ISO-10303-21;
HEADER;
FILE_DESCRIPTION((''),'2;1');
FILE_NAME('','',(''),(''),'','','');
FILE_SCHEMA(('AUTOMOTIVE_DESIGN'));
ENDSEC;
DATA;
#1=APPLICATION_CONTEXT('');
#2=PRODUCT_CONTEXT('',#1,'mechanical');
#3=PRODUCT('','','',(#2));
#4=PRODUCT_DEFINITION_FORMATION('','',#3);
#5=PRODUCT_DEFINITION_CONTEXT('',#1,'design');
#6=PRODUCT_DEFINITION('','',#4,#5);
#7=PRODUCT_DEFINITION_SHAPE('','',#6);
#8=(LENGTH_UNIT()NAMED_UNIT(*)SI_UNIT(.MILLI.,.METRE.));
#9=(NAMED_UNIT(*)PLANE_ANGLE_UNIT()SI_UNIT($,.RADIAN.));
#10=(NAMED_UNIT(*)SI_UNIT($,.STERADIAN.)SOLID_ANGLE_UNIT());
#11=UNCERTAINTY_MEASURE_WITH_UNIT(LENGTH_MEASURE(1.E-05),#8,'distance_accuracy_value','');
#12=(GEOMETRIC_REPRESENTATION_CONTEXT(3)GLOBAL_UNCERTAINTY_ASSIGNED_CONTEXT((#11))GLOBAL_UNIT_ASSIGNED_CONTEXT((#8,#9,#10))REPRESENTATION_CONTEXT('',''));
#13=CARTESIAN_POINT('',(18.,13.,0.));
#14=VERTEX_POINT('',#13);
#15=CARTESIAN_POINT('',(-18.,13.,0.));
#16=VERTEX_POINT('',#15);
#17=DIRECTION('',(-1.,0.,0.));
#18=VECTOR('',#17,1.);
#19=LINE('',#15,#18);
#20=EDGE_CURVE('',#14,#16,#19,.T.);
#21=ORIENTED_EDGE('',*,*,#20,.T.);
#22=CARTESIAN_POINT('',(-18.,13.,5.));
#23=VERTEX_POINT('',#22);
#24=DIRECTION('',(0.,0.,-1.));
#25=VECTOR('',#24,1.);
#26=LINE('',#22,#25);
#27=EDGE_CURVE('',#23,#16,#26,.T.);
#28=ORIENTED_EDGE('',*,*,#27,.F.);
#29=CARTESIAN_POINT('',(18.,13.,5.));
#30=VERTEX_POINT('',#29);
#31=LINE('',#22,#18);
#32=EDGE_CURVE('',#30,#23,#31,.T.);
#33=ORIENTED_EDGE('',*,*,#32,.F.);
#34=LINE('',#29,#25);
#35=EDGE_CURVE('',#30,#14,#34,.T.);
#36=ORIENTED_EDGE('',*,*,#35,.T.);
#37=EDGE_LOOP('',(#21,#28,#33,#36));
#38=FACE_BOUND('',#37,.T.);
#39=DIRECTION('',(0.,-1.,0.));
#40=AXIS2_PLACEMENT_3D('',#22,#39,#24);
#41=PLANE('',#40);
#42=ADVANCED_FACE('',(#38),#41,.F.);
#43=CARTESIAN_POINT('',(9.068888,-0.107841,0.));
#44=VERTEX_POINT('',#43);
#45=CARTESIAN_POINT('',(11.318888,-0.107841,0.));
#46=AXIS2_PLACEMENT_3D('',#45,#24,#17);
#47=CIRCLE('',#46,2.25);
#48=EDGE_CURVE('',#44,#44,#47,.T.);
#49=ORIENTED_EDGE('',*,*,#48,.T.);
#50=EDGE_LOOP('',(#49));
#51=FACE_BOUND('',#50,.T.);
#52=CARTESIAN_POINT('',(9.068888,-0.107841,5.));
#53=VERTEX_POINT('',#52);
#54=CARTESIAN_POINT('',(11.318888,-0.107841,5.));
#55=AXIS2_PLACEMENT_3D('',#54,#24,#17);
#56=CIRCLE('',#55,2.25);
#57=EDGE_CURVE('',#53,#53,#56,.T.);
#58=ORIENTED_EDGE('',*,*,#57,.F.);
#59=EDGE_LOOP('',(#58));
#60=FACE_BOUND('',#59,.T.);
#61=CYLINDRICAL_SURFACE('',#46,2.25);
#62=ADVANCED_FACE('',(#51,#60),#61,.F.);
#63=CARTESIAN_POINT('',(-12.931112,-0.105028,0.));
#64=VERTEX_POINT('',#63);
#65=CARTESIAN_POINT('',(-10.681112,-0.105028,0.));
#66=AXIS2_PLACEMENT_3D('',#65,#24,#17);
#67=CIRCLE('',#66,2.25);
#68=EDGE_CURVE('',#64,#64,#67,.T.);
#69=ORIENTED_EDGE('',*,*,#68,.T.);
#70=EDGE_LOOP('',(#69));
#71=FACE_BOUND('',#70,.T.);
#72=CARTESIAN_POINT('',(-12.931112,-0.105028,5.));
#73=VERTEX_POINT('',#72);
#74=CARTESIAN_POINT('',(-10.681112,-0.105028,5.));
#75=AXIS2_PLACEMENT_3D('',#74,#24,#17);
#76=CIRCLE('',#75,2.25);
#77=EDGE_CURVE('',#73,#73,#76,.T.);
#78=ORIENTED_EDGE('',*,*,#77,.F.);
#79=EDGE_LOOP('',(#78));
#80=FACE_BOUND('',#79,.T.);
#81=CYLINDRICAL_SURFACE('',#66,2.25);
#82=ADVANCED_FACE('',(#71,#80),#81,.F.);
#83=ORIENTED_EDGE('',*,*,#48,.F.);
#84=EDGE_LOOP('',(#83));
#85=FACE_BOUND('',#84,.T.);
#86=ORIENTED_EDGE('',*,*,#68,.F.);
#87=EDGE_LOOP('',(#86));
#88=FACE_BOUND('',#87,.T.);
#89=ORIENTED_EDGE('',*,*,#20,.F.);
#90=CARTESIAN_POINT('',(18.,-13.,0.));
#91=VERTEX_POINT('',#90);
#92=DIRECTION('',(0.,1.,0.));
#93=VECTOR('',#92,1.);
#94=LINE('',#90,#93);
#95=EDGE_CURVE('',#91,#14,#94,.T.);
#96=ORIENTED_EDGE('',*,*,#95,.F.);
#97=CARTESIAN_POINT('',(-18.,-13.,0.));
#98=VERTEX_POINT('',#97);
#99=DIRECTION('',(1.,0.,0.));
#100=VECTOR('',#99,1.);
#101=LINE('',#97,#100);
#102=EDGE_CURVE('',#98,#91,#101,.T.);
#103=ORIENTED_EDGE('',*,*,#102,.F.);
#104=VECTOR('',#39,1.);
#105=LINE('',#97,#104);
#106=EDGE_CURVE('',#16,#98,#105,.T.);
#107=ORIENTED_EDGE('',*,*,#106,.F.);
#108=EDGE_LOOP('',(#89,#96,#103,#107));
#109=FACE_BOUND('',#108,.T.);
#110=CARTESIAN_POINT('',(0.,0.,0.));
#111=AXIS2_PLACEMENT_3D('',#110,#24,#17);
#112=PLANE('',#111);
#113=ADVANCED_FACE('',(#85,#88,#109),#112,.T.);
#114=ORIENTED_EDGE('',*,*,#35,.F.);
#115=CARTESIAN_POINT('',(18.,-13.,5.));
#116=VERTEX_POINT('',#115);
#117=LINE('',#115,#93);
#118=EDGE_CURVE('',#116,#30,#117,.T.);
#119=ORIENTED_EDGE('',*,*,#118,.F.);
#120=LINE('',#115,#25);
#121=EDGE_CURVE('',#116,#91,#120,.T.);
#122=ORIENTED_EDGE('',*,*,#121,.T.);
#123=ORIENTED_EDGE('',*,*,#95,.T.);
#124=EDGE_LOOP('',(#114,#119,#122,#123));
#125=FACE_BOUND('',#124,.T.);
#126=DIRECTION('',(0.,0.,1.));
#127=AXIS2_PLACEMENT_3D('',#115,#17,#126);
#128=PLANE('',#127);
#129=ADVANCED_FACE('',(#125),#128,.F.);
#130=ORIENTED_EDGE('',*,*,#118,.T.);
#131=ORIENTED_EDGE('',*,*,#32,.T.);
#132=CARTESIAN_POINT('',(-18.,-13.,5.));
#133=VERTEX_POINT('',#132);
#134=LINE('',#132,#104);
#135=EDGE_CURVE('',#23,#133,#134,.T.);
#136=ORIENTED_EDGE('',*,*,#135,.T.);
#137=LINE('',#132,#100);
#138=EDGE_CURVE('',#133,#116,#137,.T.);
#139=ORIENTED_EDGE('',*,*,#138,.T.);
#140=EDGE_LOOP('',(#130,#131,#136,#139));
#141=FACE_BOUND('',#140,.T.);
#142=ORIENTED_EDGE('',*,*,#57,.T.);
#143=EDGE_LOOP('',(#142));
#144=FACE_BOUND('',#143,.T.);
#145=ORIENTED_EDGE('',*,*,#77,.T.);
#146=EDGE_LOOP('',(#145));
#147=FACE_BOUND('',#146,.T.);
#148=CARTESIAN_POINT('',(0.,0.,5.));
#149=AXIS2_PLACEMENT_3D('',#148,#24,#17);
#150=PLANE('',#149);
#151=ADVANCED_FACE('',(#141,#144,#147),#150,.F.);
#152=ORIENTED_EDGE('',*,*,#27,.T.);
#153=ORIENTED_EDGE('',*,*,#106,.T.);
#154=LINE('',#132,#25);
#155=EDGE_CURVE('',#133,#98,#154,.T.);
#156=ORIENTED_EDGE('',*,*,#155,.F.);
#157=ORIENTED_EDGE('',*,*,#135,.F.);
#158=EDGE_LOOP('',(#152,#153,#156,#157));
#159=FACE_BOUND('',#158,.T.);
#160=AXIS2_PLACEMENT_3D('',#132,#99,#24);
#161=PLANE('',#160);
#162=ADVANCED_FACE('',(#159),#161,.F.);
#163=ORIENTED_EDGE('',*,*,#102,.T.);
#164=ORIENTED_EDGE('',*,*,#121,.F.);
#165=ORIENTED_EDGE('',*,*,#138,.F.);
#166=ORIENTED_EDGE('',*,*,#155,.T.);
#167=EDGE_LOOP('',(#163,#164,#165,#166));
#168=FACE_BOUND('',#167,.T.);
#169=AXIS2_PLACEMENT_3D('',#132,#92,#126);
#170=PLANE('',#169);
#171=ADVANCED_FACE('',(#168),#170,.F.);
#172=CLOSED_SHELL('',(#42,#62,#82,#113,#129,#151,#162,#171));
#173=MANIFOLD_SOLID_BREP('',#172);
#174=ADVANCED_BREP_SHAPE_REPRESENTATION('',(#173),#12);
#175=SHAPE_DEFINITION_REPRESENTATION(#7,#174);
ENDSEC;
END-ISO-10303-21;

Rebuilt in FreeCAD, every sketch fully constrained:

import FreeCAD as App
import Part
import Sketcher

V = App.Vector


def add_polygon(sketch, points):
    """Adds a closed chain of lines whose ends are joined by coincident constraints."""
    first, n = sketch.GeometryCount, len(points)
    for a, b in zip(points, points[1:] + points[:1]):
        sketch.addGeometry(Part.LineSegment(App.Vector(*a, 0), App.Vector(*b, 0)), False)
    for i in range(n):
        sketch.addConstraint(Sketcher.Constraint("Coincident", first + i, 2, first + (i + 1) % n, 1))

doc = App.newDocument("Part")
body = doc.addObject("PartDesign::Body", "Body")

# Sketch on XY plane
sketch1 = body.newObject("Sketcher::SketchObject", "Sketch")
sketch1.AttachmentSupport = (doc.getObject("XY_Plane"), [""])
sketch1.MapMode = "FlatFace"
add_polygon(sketch1, [(-18, 13), (-18, -13), (18, -13), (18, 13)])  # lines 0-3
sketch1.addConstraint(Sketcher.Constraint("Vertical", 0))
sketch1.addConstraint(Sketcher.Constraint("Horizontal", 1))
sketch1.addConstraint(Sketcher.Constraint("Vertical", 2))
sketch1.addConstraint(Sketcher.Constraint("Horizontal", 3))
sketch1.addConstraint(Sketcher.Constraint("Symmetric", 0, 2, 2, 2, -1, 1))
sketch1.addConstraint(Sketcher.Constraint("DistanceX", 1, 1, 1, 2, 36.0))
sketch1.addConstraint(Sketcher.Constraint("DistanceY", 0, 2, 0, 1, 26.0))
pad1 = body.newObject("PartDesign::Pad", "Pad")
pad1.Profile = sketch1
pad1.Length = 5

# Sketch on XY plane
sketch2 = body.newObject("Sketcher::SketchObject", "Sketch001")
sketch2.AttachmentSupport = (doc.getObject("XY_Plane"), [""])
sketch2.MapMode = "FlatFace"
sketch2.addGeometry(Part.Circle(V(11.3, -0.1, 0), V(0, 0, 1), 2.2), False)
sketch2.addGeometry(Part.Circle(V(-10.7, -0.1, 0), V(0, 0, 1), 2.2), False)
sketch2.addConstraint(Sketcher.Constraint("Equal", 0, 1))
sketch2.addConstraint(Sketcher.Constraint("Diameter", 0, 4.5))
sketch2.addConstraint(Sketcher.Constraint("DistanceX", 1, 3, 0, 3, 22.0))
sketch2.addConstraint(Sketcher.Constraint("DistanceY", 0, 3, -1, 1, 0.107841))
sketch2.addConstraint(Sketcher.Constraint("DistanceX", -1, 1, 0, 3, 11.318888))
sketch2.addConstraint(Sketcher.Constraint("DistanceY", 1, 3, -1, 1, 0.105028))
doc.recompute()
hole = body.newObject("PartDesign::Hole", "Hole")
hole.Profile = sketch2
hole.ThreadType = "None"
hole.Diameter = 4.5
hole.DepthType = "ThroughAll"
hole.Reversed = True

doc.recompute()
